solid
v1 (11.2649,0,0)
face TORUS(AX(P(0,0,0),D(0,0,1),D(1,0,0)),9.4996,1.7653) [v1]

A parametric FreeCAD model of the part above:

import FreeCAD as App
import Part
import Sketcher

V = App.Vector
Q = App.Units.Quantity

doc = App.newDocument("Part")
body = doc.addObject("PartDesign::Body", "Body")

sketch1 = body.newObject("Sketcher::SketchObject", "Sketch")
sketch1.AttachmentSupport = (doc.getObject("YZ_Plane"), [""])
sketch1.MapMode = "FlatFace"
sketch1.addGeometry(Part.Circle(V(-9.5, 0, 0), V(0, 0, 1), 1.8), False)
sketch1.addConstraint([
    Sketcher.Constraint("PointOnObject", 0, 3, -1),
    Sketcher.Constraint("Diameter", 0, Q("0.139 in")),
    Sketcher.Constraint("DistanceX", 0, 3, -1, 1, Q("0.374 in")),
])
revolution = body.newObject("PartDesign::Revolution", "Revolution")
revolution.Profile = sketch1
revolution.ReferenceAxis = (sketch1, ["V_Axis"])
revolution.Angle = 360

doc.recompute()
